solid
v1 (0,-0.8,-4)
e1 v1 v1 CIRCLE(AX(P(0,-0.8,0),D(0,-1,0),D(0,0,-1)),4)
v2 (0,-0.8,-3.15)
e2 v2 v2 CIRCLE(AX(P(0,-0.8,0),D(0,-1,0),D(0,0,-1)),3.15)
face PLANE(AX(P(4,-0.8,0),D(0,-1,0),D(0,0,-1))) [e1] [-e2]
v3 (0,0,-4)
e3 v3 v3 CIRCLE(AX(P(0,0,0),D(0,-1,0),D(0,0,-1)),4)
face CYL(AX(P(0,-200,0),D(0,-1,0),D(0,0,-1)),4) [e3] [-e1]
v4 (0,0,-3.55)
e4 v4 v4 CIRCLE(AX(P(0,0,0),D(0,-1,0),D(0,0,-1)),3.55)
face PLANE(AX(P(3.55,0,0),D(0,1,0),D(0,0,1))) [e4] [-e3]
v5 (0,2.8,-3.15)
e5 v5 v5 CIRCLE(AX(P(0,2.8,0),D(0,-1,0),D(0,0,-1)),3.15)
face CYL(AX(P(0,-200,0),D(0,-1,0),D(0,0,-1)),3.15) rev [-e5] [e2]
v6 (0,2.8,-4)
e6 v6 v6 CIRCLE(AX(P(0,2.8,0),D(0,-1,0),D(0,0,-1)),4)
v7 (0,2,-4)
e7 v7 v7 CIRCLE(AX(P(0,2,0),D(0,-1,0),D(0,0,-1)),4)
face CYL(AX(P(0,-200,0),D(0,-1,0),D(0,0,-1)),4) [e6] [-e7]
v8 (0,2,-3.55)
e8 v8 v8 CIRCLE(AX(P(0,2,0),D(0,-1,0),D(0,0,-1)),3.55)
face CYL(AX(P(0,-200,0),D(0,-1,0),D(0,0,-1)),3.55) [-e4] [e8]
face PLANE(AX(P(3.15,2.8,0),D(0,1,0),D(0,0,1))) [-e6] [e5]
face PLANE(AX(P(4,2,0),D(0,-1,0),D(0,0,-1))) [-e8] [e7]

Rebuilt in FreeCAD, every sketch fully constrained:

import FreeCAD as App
import Part
import Sketcher


def add_polygon(sketch, points):
    """Adds a closed chain of lines whose ends are joined by coincident constraints."""
    first, n = sketch.GeometryCount, len(points)
    for a, b in zip(points, points[1:] + points[:1]):
        sketch.addGeometry(Part.LineSegment(App.Vector(*a, 0), App.Vector(*b, 0)), False)
    for i in range(n):
        sketch.addConstraint(Sketcher.Constraint("Coincident", first + i, 2, first + (i + 1) % n, 1))

doc = App.newDocument("Part")
body = doc.addObject("PartDesign::Body", "Body")

sketch1 = doc.addObject("Sketcher::SketchObject", "Sketch")
body.addObject(sketch1)
sketch1.AttachmentSupport = (doc.XY_Plane, [""])
sketch1.MapMode = "FlatFace"
add_polygon(sketch1, [(3.15, 2.8), (3.15, -0.8), (4, -0.8), (4, 0), (3.55, 0), (3.55, 2), (4, 2), (4, 2.8)])
sketch1.addConstraint(Sketcher.Constraint("Vertical", 0))
sketch1.addConstraint(Sketcher.Constraint("Horizontal", 1))
sketch1.addConstraint(Sketcher.Constraint("Vertical", 2))
sketch1.addConstraint(Sketcher.Constraint("Horizontal", 3))
sketch1.addConstraint(Sketcher.Constraint("Vertical", 4))
sketch1.addConstraint(Sketcher.Constraint("Horizontal", 5))
sketch1.addConstraint(Sketcher.Constraint("Vertical", 6))
sketch1.addConstraint(Sketcher.Constraint("Horizontal", 7))
sketch1.addConstraint(Sketcher.Constraint("PointOnObject", 2, 2, -1))
sketch1.addConstraint(Sketcher.Constraint("Vertical", 2, 2, 5, 2))
sketch1.addConstraint(Sketcher.Constraint("Equal", 2, 6))
sketch1.addConstraint(Sketcher.Constraint("DistanceY", 4, 1, 4, 2, 2.0))
sketch1.addConstraint(Sketcher.Constraint("DistanceY", 0, 2, 0, 1, 3.6))
sketch1.addConstraint(Sketcher.Constraint("DistanceX", -1, 1, 1, 2, 4.0))
sketch1.addConstraint(Sketcher.Constraint("DistanceX", 1, 1, 1, 2, 0.85))
sketch1.addConstraint(Sketcher.Constraint("DistanceX", 3, 2, 3, 1, 0.45))
revolution = doc.addObject("PartDesign::Revolution", "Revolution")
body.addObject(revolution)
revolution.Profile = sketch1
revolution.ReferenceAxis = (sketch1, ["V_Axis"])
revolution.Angle = 360

doc.recompute()
